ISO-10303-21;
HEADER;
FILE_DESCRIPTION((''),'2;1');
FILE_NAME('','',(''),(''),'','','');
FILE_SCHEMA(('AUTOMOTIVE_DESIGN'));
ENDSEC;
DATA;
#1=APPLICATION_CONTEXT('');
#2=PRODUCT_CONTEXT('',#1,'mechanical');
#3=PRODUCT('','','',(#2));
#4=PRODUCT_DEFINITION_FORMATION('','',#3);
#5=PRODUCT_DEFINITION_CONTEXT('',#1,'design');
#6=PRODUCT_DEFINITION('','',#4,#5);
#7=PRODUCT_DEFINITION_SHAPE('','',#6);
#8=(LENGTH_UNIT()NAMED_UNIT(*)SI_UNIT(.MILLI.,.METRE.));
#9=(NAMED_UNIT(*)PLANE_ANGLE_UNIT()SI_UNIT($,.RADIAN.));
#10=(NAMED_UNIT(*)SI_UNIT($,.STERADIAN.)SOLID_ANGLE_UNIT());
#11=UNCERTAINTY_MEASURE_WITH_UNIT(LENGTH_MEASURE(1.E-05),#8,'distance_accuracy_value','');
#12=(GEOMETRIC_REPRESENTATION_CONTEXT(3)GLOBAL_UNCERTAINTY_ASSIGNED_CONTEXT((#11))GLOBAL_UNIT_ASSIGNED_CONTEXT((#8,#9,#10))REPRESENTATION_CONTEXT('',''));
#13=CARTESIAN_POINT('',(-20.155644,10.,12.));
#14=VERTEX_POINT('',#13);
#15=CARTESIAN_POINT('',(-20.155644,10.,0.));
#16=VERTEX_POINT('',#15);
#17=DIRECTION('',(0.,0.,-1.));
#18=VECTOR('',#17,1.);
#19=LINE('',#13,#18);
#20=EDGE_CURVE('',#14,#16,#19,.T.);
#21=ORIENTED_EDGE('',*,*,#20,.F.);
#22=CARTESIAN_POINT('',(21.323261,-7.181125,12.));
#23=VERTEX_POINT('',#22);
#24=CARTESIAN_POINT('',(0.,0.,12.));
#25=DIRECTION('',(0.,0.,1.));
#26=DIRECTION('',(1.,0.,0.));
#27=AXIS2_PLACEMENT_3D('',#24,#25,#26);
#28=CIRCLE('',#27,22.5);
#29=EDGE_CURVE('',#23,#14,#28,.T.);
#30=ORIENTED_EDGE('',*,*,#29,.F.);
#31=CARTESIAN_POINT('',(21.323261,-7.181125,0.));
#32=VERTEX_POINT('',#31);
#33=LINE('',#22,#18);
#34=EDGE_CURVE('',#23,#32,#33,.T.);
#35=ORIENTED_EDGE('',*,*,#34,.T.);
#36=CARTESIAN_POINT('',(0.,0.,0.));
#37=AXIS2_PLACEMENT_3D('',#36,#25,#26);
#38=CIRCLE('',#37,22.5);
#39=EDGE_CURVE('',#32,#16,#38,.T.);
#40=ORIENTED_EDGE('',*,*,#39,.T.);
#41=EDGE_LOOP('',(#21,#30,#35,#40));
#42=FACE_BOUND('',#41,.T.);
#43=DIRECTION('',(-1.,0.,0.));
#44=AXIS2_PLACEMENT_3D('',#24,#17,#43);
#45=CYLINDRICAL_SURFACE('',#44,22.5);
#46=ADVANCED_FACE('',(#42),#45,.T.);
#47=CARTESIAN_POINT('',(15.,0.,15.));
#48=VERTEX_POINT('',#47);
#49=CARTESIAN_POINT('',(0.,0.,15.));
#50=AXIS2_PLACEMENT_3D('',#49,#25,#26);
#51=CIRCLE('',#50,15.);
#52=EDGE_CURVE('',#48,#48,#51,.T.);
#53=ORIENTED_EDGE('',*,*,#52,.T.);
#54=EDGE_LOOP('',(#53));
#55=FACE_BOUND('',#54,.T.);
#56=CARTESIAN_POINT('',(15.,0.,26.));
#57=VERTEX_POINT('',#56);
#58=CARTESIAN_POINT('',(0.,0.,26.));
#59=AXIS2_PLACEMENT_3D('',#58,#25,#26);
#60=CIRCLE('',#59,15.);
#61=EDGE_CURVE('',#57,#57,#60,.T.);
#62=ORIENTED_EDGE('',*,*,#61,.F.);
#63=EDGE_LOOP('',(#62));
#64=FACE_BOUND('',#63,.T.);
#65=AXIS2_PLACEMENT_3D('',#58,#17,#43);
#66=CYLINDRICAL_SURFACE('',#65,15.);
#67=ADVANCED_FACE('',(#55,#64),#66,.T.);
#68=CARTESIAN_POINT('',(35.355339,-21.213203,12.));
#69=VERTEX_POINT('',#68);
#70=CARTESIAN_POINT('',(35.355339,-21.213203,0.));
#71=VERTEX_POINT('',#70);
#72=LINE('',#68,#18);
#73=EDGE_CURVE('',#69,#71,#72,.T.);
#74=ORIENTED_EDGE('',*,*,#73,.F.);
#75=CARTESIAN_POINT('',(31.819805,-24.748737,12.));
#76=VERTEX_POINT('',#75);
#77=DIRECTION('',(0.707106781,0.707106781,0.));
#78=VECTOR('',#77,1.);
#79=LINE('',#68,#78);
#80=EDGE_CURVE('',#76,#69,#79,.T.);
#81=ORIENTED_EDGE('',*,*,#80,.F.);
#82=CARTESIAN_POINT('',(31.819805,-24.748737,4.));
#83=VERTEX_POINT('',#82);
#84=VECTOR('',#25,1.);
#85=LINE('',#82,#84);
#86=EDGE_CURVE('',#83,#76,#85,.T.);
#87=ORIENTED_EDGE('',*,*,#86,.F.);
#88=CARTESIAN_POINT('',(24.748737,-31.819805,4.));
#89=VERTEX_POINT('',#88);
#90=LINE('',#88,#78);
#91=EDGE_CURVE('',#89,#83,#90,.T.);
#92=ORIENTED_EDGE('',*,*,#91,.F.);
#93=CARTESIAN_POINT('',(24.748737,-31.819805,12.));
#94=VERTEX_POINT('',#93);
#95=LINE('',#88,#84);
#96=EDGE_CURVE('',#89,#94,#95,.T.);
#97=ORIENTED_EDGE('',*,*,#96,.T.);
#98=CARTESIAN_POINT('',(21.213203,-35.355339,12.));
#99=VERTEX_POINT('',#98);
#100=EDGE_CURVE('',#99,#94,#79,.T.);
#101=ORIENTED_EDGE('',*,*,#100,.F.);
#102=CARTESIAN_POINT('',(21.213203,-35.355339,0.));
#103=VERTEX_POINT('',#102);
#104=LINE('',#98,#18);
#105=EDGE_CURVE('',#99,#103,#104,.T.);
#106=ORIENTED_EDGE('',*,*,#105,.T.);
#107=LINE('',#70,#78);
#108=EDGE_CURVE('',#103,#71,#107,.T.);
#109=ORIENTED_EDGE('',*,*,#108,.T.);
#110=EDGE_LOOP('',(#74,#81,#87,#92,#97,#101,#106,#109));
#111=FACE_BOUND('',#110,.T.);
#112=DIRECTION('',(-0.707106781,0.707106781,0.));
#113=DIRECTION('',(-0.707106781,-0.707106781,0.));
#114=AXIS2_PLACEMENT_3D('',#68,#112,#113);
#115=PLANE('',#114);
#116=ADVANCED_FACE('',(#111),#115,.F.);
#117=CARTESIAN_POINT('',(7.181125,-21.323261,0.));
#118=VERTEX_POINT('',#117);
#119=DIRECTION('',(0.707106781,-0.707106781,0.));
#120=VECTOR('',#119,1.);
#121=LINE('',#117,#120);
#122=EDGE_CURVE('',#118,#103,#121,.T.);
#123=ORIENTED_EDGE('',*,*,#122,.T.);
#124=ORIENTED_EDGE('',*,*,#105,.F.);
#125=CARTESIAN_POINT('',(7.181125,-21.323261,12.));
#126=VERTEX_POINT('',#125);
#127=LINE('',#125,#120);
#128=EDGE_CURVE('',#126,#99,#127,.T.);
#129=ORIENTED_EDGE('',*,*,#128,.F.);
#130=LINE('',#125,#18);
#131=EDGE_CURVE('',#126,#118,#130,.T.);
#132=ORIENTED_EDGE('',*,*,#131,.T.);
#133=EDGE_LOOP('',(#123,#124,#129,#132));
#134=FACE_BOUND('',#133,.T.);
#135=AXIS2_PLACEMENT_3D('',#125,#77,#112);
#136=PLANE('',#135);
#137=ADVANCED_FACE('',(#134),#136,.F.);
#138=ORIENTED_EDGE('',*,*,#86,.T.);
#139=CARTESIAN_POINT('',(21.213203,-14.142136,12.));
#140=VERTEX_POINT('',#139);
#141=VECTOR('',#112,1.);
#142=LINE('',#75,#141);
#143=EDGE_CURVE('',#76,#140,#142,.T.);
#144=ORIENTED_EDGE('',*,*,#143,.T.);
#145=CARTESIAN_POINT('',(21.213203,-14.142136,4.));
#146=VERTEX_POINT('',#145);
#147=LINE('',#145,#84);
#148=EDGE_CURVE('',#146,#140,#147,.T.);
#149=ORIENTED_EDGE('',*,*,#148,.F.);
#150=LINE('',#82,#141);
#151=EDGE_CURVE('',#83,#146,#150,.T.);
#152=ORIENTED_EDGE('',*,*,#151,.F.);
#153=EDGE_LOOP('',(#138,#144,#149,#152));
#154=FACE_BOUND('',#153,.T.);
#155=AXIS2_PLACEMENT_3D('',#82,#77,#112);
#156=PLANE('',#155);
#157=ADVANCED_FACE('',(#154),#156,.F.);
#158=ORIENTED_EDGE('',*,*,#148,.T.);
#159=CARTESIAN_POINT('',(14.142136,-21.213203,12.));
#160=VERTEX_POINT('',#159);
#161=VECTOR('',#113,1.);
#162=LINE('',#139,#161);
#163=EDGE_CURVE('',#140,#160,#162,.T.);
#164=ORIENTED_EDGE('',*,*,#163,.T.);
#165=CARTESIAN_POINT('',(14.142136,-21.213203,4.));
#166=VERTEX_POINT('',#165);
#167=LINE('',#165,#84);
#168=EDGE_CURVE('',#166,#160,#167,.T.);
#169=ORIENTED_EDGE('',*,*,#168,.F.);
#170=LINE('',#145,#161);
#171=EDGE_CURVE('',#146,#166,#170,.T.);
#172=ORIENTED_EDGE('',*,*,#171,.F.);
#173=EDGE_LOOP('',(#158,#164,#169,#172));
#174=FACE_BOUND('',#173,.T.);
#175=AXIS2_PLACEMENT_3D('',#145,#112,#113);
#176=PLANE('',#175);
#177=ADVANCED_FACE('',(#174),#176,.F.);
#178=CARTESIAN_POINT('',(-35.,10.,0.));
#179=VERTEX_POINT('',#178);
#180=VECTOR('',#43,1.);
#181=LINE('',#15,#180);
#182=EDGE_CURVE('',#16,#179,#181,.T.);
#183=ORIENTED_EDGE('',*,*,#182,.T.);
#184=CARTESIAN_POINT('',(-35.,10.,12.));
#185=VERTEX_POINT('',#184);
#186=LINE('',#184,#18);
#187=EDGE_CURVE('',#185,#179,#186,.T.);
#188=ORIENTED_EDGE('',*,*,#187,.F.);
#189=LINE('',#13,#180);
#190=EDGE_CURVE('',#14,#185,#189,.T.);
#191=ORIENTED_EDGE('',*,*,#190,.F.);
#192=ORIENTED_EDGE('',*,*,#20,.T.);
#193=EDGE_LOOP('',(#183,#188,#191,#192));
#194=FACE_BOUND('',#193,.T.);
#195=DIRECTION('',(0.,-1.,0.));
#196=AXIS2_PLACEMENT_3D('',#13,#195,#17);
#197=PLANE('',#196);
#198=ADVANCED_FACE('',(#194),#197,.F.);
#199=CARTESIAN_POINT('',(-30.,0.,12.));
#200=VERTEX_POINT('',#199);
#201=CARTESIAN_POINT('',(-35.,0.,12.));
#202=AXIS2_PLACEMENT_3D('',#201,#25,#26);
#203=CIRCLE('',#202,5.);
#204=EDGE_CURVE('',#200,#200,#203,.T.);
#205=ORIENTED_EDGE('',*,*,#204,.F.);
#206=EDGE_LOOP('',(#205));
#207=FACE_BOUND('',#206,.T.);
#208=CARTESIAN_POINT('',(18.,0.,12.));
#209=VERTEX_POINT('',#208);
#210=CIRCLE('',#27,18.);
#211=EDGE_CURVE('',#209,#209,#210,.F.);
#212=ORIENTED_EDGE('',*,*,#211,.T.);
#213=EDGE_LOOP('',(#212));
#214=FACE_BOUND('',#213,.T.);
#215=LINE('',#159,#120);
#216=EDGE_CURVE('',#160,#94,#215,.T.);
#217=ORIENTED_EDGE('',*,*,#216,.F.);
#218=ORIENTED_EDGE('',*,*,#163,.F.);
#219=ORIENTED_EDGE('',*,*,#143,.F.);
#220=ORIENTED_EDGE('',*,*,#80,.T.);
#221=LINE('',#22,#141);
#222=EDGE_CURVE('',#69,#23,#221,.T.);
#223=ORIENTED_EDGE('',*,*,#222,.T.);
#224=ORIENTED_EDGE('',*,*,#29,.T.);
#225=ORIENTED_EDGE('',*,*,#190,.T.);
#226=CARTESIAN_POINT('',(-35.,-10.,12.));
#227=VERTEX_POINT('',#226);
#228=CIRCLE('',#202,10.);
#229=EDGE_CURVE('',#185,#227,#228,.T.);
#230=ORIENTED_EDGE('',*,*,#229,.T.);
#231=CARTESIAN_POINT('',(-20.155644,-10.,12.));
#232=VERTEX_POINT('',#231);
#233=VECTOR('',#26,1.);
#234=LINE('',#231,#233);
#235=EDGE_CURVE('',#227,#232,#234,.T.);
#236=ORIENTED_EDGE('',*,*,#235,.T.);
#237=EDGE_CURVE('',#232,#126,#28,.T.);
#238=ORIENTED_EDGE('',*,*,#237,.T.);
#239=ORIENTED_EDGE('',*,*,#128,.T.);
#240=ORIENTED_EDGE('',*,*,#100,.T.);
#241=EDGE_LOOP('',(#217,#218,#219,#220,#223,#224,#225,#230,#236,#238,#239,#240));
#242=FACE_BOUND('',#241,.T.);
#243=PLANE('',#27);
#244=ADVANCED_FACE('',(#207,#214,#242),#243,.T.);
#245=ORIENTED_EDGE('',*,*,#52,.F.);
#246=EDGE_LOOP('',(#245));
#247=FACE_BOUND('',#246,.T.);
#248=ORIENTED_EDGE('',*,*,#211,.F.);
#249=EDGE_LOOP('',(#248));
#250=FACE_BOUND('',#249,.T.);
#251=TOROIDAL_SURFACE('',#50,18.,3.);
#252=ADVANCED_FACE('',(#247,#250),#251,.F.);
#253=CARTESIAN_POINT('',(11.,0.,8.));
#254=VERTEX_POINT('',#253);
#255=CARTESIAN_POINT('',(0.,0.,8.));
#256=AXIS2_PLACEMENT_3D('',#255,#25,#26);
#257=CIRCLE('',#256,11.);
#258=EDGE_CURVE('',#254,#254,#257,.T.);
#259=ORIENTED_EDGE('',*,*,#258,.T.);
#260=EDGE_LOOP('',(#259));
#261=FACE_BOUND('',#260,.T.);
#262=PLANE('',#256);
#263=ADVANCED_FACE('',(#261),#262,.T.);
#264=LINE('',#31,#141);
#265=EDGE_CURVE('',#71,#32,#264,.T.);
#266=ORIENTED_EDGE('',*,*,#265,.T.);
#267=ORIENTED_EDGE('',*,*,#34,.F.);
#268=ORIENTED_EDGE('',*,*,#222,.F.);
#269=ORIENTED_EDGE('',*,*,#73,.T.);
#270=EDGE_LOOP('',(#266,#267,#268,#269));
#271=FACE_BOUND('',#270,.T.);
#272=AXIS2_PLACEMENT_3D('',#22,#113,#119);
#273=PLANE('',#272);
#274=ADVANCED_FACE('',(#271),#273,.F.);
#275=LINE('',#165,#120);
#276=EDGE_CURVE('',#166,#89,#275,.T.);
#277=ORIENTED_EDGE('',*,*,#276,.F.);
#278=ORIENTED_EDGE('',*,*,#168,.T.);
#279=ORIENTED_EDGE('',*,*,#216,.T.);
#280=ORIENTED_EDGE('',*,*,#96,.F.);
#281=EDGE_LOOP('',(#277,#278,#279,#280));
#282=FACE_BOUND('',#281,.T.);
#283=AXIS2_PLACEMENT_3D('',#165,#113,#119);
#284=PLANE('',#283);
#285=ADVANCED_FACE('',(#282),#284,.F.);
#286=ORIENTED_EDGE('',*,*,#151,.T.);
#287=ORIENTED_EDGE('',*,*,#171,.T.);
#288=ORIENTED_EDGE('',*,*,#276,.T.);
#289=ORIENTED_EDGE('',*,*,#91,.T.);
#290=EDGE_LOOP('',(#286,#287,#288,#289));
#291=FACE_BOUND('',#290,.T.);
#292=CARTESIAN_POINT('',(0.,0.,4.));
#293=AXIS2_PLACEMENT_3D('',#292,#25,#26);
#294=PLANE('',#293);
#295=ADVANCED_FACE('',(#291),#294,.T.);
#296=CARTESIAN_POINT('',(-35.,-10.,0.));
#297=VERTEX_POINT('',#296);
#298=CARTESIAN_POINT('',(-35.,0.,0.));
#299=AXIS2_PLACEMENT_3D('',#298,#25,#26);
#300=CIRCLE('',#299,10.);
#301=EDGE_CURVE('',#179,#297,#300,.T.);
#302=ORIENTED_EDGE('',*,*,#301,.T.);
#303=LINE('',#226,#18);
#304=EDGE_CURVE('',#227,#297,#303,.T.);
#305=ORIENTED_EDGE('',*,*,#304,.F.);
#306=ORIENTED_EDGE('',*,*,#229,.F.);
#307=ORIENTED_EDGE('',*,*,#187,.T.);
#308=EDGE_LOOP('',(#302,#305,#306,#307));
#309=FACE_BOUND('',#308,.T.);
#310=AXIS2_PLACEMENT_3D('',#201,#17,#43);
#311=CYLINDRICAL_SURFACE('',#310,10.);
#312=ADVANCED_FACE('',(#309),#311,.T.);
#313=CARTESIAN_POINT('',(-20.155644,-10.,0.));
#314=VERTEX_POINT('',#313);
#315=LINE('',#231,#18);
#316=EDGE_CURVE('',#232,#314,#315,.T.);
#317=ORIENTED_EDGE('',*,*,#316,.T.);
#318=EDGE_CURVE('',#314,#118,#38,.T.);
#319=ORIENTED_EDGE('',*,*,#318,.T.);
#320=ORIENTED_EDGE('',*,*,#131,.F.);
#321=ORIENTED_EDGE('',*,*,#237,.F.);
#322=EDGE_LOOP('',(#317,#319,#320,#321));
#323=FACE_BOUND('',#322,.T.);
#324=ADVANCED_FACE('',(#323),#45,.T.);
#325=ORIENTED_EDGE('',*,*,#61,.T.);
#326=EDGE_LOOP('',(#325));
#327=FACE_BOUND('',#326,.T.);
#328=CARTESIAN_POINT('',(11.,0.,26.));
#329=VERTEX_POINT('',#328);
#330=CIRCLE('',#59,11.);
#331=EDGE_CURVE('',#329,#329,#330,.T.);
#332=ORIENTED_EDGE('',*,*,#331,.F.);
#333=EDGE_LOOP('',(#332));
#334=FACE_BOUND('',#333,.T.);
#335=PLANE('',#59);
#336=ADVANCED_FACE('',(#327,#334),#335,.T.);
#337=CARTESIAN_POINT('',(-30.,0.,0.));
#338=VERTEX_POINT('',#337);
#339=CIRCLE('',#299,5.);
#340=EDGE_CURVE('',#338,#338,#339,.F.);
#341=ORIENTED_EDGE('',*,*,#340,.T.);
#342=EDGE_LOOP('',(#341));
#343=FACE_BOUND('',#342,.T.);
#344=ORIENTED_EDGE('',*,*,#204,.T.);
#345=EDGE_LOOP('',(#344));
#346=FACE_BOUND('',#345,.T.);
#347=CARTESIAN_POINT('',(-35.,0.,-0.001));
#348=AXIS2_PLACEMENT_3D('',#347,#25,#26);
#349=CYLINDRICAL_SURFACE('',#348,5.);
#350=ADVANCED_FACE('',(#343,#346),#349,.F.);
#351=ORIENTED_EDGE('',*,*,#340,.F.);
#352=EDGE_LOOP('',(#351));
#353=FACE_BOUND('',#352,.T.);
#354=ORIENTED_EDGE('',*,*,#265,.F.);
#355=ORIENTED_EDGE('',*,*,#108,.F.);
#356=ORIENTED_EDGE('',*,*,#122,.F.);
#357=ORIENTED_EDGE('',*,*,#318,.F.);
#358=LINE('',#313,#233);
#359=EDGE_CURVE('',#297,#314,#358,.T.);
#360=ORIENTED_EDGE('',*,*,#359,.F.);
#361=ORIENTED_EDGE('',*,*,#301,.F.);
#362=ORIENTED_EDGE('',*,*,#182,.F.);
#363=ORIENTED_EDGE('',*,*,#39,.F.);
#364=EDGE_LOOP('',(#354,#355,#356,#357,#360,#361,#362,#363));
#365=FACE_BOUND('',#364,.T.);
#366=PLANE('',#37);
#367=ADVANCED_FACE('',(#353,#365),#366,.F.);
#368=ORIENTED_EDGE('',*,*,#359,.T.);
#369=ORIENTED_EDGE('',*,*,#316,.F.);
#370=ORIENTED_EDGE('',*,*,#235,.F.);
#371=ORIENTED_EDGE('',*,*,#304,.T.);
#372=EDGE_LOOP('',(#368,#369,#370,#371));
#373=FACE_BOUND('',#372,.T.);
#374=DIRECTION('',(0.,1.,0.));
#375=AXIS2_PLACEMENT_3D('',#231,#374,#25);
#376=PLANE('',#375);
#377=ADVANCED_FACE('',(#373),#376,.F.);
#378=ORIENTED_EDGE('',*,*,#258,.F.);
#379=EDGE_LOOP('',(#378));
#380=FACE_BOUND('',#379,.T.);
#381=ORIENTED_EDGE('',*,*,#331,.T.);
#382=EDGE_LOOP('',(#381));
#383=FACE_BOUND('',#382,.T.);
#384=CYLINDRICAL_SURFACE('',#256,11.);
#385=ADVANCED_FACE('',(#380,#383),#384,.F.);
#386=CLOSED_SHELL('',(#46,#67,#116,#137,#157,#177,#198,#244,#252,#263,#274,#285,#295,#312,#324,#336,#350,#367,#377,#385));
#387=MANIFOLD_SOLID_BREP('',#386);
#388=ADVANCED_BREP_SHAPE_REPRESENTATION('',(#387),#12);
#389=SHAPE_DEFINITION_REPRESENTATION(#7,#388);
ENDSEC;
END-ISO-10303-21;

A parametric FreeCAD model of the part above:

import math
import FreeCAD as App
import Part
import Sketcher
from FreeCAD import Vector
Q = App.Units.Quantity


def edges_at(feature, points):
    """Names of the edges that pass closest to the given points."""
    edges = feature.Shape.Edges
    near = lambda p: min(range(len(edges)), key=lambda i: edges[i].distToShape(Part.Vertex(*p))[0])
    return sorted({f"Edge{near(p) + 1}" for p in points})

doc = App.newDocument("Part")
body = doc.addObject("PartDesign::Body", "Body")

sketch1 = body.newObject("Sketcher::SketchObject", "Sketch")
sketch1.AttachmentSupport = (doc.getObject("XY_Plane"), [""])
sketch1.MapMode = "FlatFace"
sketch1.addGeometry([
    Part.LineSegment(Vector(7, -21, 0), Vector(21, -35, 0)),
    Part.LineSegment(Vector(21, -35, 0), Vector(35, -21, 0)),
    Part.LineSegment(Vector(35, -21, 0), Vector(21, -7, 0)),
    Part.ArcOfCircle(Part.Circle(Vector(0, 0, 0), Vector(0, 0, 1), 22), math.radians(-19), math.radians(154)),
    Part.LineSegment(Vector(-20, 10, 0), Vector(-35, 10, 0)),
    Part.ArcOfCircle(Part.Circle(Vector(-35, 0, 0), Vector(0, 0, 1), 10), math.radians(90), math.radians(270)),
    Part.LineSegment(Vector(-35, -10, 0), Vector(-20, -10, 0)),
    Part.ArcOfCircle(Part.Circle(Vector(0, 0, 0), Vector(0, 0, 1), 22), math.radians(-154), math.radians(-71)),
], False)
sketch1.addConstraint([
    Sketcher.Constraint("Coincident", 0, 2, 1, 1),
    Sketcher.Constraint("Coincident", 1, 2, 2, 1),
    Sketcher.Constraint("Coincident", 2, 2, 3, 1),
    Sketcher.Constraint("Coincident", 3, 2, 4, 1),
    Sketcher.Constraint("Tangent", 4, 2, 5, 1),
    Sketcher.Constraint("Tangent", 5, 2, 6, 1),
    Sketcher.Constraint("Coincident", 6, 2, 7, 1),
    Sketcher.Constraint("Coincident", 7, 2, 0, 1),
    Sketcher.Constraint("Horizontal", 4),
    Sketcher.Constraint("Horizontal", 6),
    Sketcher.Constraint("Coincident", 3, 3, -1, 1),
    Sketcher.Constraint("Coincident", 7, 3, -1, 1),
    Sketcher.Constraint("Equal", 3, 7),
    Sketcher.Constraint("PointOnObject", 5, 3, -1),
    Sketcher.Constraint("Perpendicular", 0, 1),
    Sketcher.Constraint("Perpendicular", 1, 2),
    Sketcher.Constraint("Equal", 0, 2),
    Sketcher.Constraint("Radius", 5, Q("10 mm")),
    Sketcher.Constraint("Radius", 3, Q("22.5 mm")),
    Sketcher.Constraint("Angle", 0, Q("-45 deg")),
    Sketcher.Constraint("Distance", 1, Q("20 mm")),
    Sketcher.Constraint("DistanceX", 5, 3, -1, 1, Q("35 mm")),
    Sketcher.Constraint("DistanceY", 0, 2, -1, 1, Q("35.355339 mm")),
])
pad1 = body.newObject("PartDesign::Pad", "Pad")
pad1.Profile = sketch1
pad1.Length = 12

sketch2 = body.newObject("Sketcher::SketchObject", "Sketch001")
sketch2.AttachmentSupport = (doc.getObject("XY_Plane"), [""])
sketch2.MapMode = "FlatFace"
sketch2.AttachmentOffset = App.Placement(Vector(0, 0, 12), App.Rotation())
sketch2.addGeometry(Part.Circle(Vector(0, 0, 0), Vector(0, 0, 1), 15), False)
sketch2.addConstraint([
    Sketcher.Constraint("Coincident", 0, 3, -1, 1),
    Sketcher.Constraint("Diameter", 0, Q("30 mm")),
])
pad2 = body.newObject("PartDesign::Pad", "Pad001")
pad2.Profile = sketch2
pad2.Length = 14

sketch3 = body.newObject("Sketcher::SketchObject", "Sketch002")
sketch3.AttachmentSupport = (doc.getObject("XY_Plane"), [""])
sketch3.MapMode = "FlatFace"
sketch3.AttachmentOffset = App.Placement(Vector(0, 0, 26), App.Rotation())
sketch3.addGeometry(Part.Circle(Vector(0, 0, 0), Vector(0, 0, 1), 11), False)
sketch3.addConstraint([
    Sketcher.Constraint("Coincident", 0, 3, -1, 1),
    Sketcher.Constraint("Diameter", 0, Q("22 mm")),
])
pocket1 = body.newObject("PartDesign::Pocket", "Pocket")
pocket1.Profile = sketch3
pocket1.Length = 18
doc.recompute()

fillet = body.newObject("PartDesign::Fillet", "Fillet")
fillet.Base = (pocket1, edges_at(pocket1, [(-15, 0, 12)]))
fillet.Radius = 3

sketch4 = body.newObject("Sketcher::SketchObject", "Sketch003")
sketch4.AttachmentSupport = (doc.getObject("XY_Plane"), [""])
sketch4.MapMode = "FlatFace"
sketch4.AttachmentOffset = App.Placement(Vector(0, 0, 12), App.Rotation())
sketch4.addGeometry([
    Part.LineSegment(Vector(32, -25, 0), Vector(21, -14, 0)),
    Part.LineSegment(Vector(21, -14, 0), Vector(14, -21, 0)),
    Part.LineSegment(Vector(14, -21, 0), Vector(25, -32, 0)),
    Part.LineSegment(Vector(25, -32, 0), Vector(32, -25, 0)),
], False)
sketch4.addConstraint([
    Sketcher.Constraint("Coincident", 0, 2, 1, 1),
    Sketcher.Constraint("Coincident", 1, 2, 2, 1),
    Sketcher.Constraint("Coincident", 2, 2, 3, 1),
    Sketcher.Constraint("Coincident", 3, 2, 0, 1),
    Sketcher.Constraint("Perpendicular", 0, 1),
    Sketcher.Constraint("Perpendicular", 1, 2),
    Sketcher.Constraint("Perpendicular", 2, 3),
    Sketcher.Constraint("Angle", 0, Q("135 deg")),
    Sketcher.Constraint("Distance", 0, Q("15 mm")),
    Sketcher.Constraint("Distance", 1, Q("10 mm")),
    Sketcher.Constraint("DistanceX", -1, 1, 0, 2, Q("21.213203 mm")),
    Sketcher.Constraint("DistanceY", 0, 2, -1, 1, Q("14.142136 mm")),
])
pocket2 = body.newObject("PartDesign::Pocket", "Pocket001")
pocket2.Profile = sketch4
pocket2.Length = 8

sketch5 = body.newObject("Sketcher::SketchObject", "Sketch004")
sketch5.AttachmentSupport = (doc.getObject("XY_Plane"), [""])
sketch5.MapMode = "FlatFace"
sketch5.AttachmentOffset = App.Placement(Vector(0, 0, 12), App.Rotation())
sketch5.addGeometry(Part.Circle(Vector(-35, 0, 0), Vector(0, 0, 1), 5), False)
sketch5.addConstraint([
    Sketcher.Constraint("PointOnObject", 0, 3, -1),
    Sketcher.Constraint("Diameter", 0, Q("10 mm")),
    Sketcher.Constraint("DistanceX", 0, 3, -1, 1, Q("35 mm")),
])
pocket3 = body.newObject("PartDesign::Pocket", "Pocket002")
pocket3.Profile = sketch5
pocket3.Type = "UpToFirst"

doc.recompute()
